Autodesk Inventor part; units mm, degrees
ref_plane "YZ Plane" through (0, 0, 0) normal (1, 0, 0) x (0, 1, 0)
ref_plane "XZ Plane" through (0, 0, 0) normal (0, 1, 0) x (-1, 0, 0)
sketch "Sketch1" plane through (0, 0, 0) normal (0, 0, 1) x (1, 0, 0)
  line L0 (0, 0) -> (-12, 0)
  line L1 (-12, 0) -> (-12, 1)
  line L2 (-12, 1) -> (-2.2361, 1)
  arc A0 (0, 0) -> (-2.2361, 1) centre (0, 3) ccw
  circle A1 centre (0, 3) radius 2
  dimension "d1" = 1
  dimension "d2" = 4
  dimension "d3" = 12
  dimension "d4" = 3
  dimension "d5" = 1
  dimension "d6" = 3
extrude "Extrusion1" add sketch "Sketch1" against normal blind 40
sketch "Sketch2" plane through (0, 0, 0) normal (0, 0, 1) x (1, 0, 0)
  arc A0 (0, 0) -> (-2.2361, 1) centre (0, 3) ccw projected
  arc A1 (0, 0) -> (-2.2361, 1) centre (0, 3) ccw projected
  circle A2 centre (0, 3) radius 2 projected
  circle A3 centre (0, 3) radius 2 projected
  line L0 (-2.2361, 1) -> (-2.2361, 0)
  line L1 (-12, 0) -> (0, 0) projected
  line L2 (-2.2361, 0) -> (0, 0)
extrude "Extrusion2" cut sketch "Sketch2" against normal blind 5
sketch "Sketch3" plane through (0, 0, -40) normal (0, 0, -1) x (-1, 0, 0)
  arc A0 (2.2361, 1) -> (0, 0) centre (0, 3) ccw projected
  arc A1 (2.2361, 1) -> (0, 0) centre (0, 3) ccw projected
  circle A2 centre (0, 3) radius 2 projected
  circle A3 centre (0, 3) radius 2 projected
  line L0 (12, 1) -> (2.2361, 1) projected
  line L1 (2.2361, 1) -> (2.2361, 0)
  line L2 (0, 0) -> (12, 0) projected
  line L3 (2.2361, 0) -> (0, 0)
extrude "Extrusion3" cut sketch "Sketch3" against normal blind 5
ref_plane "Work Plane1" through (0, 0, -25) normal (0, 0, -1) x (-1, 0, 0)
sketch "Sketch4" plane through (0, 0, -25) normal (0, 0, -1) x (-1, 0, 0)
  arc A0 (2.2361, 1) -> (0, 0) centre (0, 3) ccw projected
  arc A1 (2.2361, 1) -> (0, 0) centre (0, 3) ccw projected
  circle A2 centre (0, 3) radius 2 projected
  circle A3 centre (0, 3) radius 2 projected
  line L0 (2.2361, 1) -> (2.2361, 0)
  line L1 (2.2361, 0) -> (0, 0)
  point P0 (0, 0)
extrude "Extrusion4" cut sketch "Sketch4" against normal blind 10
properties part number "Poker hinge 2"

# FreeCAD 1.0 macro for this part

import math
import FreeCAD as App
import Part
import Sketcher
from FreeCAD import Vector

doc = App.newDocument("Part")
params = doc.addObject("Spreadsheet::Sheet", "Params")
for row, (alias, value) in enumerate([
    ("sketch1_diameter", "4 mm"),
    ("sketch1_radius", "3 mm"),
    ("sketch1_width", "12 mm"),
    ("sketch1_height", "1 mm"),
    ("pad1_length", "40 mm"),
    ("sketch2_diameter", "4 mm"),
    ("sketch2_radius", "3 mm"),
    ("sketch2_height", "1 mm"),
    ("pocket1_length", "5 mm"),
    ("sketch3_diameter", "4 mm"),
    ("sketch3_radius", "3 mm"),
    ("sketch3_height", "1 mm"),
    ("pocket2_length", "5 mm"),
    ("sketch4_diameter", "4 mm"),
    ("sketch4_radius", "3 mm"),
    ("sketch4_height", "1 mm"),
    ("pocket3_length", "10 mm"),
], start=1):
    params.set(f"A{row}", alias)
    params.set(f"B{row}", "=" + value)
    params.setAlias(f"B{row}", alias)

body = doc.addObject("PartDesign::Body", "Body")

# Sketch on XY plane
sketch1 = doc.addObject("Sketcher::SketchObject", "Sketch")
body.addObject(sketch1)
sketch1.AttachmentSupport = (doc.XY_Plane, [""])
sketch1.MapMode = "FlatFace"
sketch1.addGeometry(Part.LineSegment(Vector(-12, 0, 0), Vector(0, 0, 0)), False)
sketch1.addGeometry(Part.ArcOfCircle(Part.Circle(Vector(0, 3, 0), Vector(0, 0, 1), 3), math.radians(-90), math.radians(221.809907)), False)
sketch1.addGeometry(Part.LineSegment(Vector(-2.2361, 1, 0), Vector(-12, 1, 0)), False)
sketch1.addGeometry(Part.LineSegment(Vector(-12, 1, 0), Vector(-12, 0, 0)), False)
sketch1.addGeometry(Part.Circle(Vector(0, 3, 0), Vector(0, 0, 1), 2), False)
sketch1.addConstraint(Sketcher.Constraint("Tangent", 0, 2, 1, 1))
sketch1.addConstraint(Sketcher.Constraint("Coincident", 1, 2, 2, 1))
sketch1.addConstraint(Sketcher.Constraint("Coincident", 2, 2, 3, 1))
sketch1.addConstraint(Sketcher.Constraint("Coincident", 3, 2, 0, 1))
sketch1.addConstraint(Sketcher.Constraint("Horizontal", 0))
sketch1.addConstraint(Sketcher.Constraint("Horizontal", 2))
sketch1.addConstraint(Sketcher.Constraint("Vertical", 3))
sketch1.addConstraint(Sketcher.Constraint("Coincident", 0, 2, -1, 1))
sketch1.addConstraint(Sketcher.Constraint("Coincident", 4, 3, 1, 3))
sketch1.addConstraint(Sketcher.Constraint("Diameter", 4, 4.0))
sketch1.addConstraint(Sketcher.Constraint("Radius", 1, 3.0))
sketch1.addConstraint(Sketcher.Constraint("DistanceX", 0, 1, 0, 2, 12.0))
sketch1.addConstraint(Sketcher.Constraint("DistanceY", 3, 2, 3, 1, 1.0))
sketch1.setExpression("Constraints[9]", "Params.sketch1_diameter")
sketch1.setExpression("Constraints[10]", "Params.sketch1_radius")
sketch1.setExpression("Constraints[11]", "Params.sketch1_width")
sketch1.setExpression("Constraints[12]", "Params.sketch1_height")
pad1 = doc.addObject("PartDesign::Pad", "Pad")
body.addObject(pad1)
pad1.Profile = sketch1
pad1.setExpression("Length", "Params.pad1_length")
pad1.Reversed = True

# Sketch on XY plane
sketch2 = doc.addObject("Sketcher::SketchObject", "Sketch001")
body.addObject(sketch2)
sketch2.AttachmentSupport = (doc.XY_Plane, [""])
sketch2.MapMode = "FlatFace"
sketch2.addGeometry(Part.LineSegment(Vector(-2.2361, 0, 0), Vector(0, 0, 0)), False)
sketch2.addGeometry(Part.ArcOfCircle(Part.Circle(Vector(0, 3, 0), Vector(0, 0, 1), 3), math.radians(-90), math.radians(221.809907)), False)
sketch2.addGeometry(Part.LineSegment(Vector(-2.2361, 1, 0), Vector(-2.2361, 0, 0)), False)
sketch2.addGeometry(Part.Circle(Vector(0, 3, 0), Vector(0, 0, 1), 2), False)
sketch2.addConstraint(Sketcher.Constraint("Tangent", 0, 2, 1, 1))
sketch2.addConstraint(Sketcher.Constraint("Coincident", 1, 2, 2, 1))
sketch2.addConstraint(Sketcher.Constraint("Coincident", 2, 2, 0, 1))
sketch2.addConstraint(Sketcher.Constraint("Horizontal", 0))
sketch2.addConstraint(Sketcher.Constraint("Vertical", 2))
sketch2.addConstraint(Sketcher.Constraint("Coincident", 0, 2, -1, 1))
sketch2.addConstraint(Sketcher.Constraint("Coincident", 3, 3, 1, 3))
sketch2.addConstraint(Sketcher.Constraint("Diameter", 3, 4.0))
sketch2.addConstraint(Sketcher.Constraint("Radius", 1, 3.0))
sketch2.addConstraint(Sketcher.Constraint("DistanceY", 2, 2, 2, 1, 1.0))
sketch2.setExpression("Constraints[7]", "Params.sketch2_diameter")
sketch2.setExpression("Constraints[8]", "Params.sketch2_radius")
sketch2.setExpression("Constraints[9]", "Params.sketch2_height")
pocket1 = doc.addObject("PartDesign::Pocket", "Pocket")
body.addObject(pocket1)
pocket1.Profile = sketch2
pocket1.setExpression("Length", "Params.pocket1_length")

# Sketch on XY plane
sketch3 = doc.addObject("Sketcher::SketchObject", "Sketch002")
body.addObject(sketch3)
sketch3.AttachmentSupport = (doc.XY_Plane, [""])
sketch3.MapMode = "FlatFace"
sketch3.AttachmentOffset = App.Placement(Vector(0, 0, -40), App.Rotation())
sketch3.addGeometry(Part.LineSegment(Vector(-2.2361, 0, 0), Vector(-2.2361, 1, 0)), False)
sketch3.addGeometry(Part.ArcOfCircle(Part.Circle(Vector(0, 3, 0), Vector(0, 0, 1), 3.000024), math.radians(-90), math.radians(221.809907)), False)
sketch3.addGeometry(Part.LineSegment(Vector(0, 0, 0), Vector(-2.2361, 0, 0)), False)
sketch3.addGeometry(Part.Circle(Vector(0, 3, 0), Vector(0, 0, 1), 2), False)
sketch3.addConstraint(Sketcher.Constraint("Coincident", 0, 2, 1, 2))
sketch3.addConstraint(Sketcher.Constraint("Tangent", 1, 1, 2, 1))
sketch3.addConstraint(Sketcher.Constraint("Coincident", 2, 2, 0, 1))
sketch3.addConstraint(Sketcher.Constraint("Vertical", 0))
sketch3.addConstraint(Sketcher.Constraint("Horizontal", 2))
sketch3.addConstraint(Sketcher.Constraint("Coincident", 1, 1, -1, 1))
sketch3.addConstraint(Sketcher.Constraint("Coincident", 3, 3, 1, 3))
sketch3.addConstraint(Sketcher.Constraint("Diameter", 3, 4.0))
sketch3.addConstraint(Sketcher.Constraint("Radius", 1, 3.0))
sketch3.addConstraint(Sketcher.Constraint("DistanceY", 0, 1, 0, 2, 1.0))
sketch3.setExpression("Constraints[7]", "Params.sketch3_diameter")
sketch3.setExpression("Constraints[8]", "Params.sketch3_radius")
sketch3.setExpression("Constraints[9]", "Params.sketch3_height")
pocket2 = doc.addObject("PartDesign::Pocket", "Pocket001")
body.addObject(pocket2)
pocket2.Profile = sketch3
pocket2.setExpression("Length", "Params.pocket2_length")
pocket2.Reversed = True

# Sketch on XY plane
sketch4 = doc.addObject("Sketcher::SketchObject", "Sketch003")
body.addObject(sketch4)
sketch4.AttachmentSupport = (doc.XY_Plane, [""])
sketch4.MapMode = "FlatFace"
sketch4.AttachmentOffset = App.Placement(Vector(0, 0, -25), App.Rotation())
sketch4.addGeometry(Part.LineSegment(Vector(-2.2361, 0, 0), Vector(-2.2361, 1, 0)), False)
sketch4.addGeometry(Part.ArcOfCircle(Part.Circle(Vector(0, 3, 0), Vector(0, 0, 1), 3.000024), math.radians(-90), math.radians(221.809907)), False)
sketch4.addGeometry(Part.LineSegment(Vector(0, 0, 0), Vector(-2.2361, 0, 0)), False)
sketch4.addGeometry(Part.Circle(Vector(0, 3, 0), Vector(0, 0, 1), 2), False)
sketch4.addConstraint(Sketcher.Constraint("Coincident", 0, 2, 1, 2))
sketch4.addConstraint(Sketcher.Constraint("Tangent", 1, 1, 2, 1))
sketch4.addConstraint(Sketcher.Constraint("Coincident", 2, 2, 0, 1))
sketch4.addConstraint(Sketcher.Constraint("Vertical", 0))
sketch4.addConstraint(Sketcher.Constraint("Horizontal", 2))
sketch4.addConstraint(Sketcher.Constraint("Coincident", 1, 1, -1, 1))
sketch4.addConstraint(Sketcher.Constraint("Coincident", 3, 3, 1, 3))
sketch4.addConstraint(Sketcher.Constraint("Diameter", 3, 4.0))
sketch4.addConstraint(Sketcher.Constraint("Radius", 1, 3.0))
sketch4.addConstraint(Sketcher.Constraint("DistanceY", 0, 1, 0, 2, 1.0))
sketch4.setExpression("Constraints[7]", "Params.sketch4_diameter")
sketch4.setExpression("Constraints[8]", "Params.sketch4_radius")
sketch4.setExpression("Constraints[9]", "Params.sketch4_height")
pocket3 = doc.addObject("PartDesign::Pocket", "Pocket002")
body.addObject(pocket3)
pocket3.Profile = sketch4
pocket3.setExpression("Length", "Params.pocket3_length")
pocket3.Reversed = True

doc.recompute()
